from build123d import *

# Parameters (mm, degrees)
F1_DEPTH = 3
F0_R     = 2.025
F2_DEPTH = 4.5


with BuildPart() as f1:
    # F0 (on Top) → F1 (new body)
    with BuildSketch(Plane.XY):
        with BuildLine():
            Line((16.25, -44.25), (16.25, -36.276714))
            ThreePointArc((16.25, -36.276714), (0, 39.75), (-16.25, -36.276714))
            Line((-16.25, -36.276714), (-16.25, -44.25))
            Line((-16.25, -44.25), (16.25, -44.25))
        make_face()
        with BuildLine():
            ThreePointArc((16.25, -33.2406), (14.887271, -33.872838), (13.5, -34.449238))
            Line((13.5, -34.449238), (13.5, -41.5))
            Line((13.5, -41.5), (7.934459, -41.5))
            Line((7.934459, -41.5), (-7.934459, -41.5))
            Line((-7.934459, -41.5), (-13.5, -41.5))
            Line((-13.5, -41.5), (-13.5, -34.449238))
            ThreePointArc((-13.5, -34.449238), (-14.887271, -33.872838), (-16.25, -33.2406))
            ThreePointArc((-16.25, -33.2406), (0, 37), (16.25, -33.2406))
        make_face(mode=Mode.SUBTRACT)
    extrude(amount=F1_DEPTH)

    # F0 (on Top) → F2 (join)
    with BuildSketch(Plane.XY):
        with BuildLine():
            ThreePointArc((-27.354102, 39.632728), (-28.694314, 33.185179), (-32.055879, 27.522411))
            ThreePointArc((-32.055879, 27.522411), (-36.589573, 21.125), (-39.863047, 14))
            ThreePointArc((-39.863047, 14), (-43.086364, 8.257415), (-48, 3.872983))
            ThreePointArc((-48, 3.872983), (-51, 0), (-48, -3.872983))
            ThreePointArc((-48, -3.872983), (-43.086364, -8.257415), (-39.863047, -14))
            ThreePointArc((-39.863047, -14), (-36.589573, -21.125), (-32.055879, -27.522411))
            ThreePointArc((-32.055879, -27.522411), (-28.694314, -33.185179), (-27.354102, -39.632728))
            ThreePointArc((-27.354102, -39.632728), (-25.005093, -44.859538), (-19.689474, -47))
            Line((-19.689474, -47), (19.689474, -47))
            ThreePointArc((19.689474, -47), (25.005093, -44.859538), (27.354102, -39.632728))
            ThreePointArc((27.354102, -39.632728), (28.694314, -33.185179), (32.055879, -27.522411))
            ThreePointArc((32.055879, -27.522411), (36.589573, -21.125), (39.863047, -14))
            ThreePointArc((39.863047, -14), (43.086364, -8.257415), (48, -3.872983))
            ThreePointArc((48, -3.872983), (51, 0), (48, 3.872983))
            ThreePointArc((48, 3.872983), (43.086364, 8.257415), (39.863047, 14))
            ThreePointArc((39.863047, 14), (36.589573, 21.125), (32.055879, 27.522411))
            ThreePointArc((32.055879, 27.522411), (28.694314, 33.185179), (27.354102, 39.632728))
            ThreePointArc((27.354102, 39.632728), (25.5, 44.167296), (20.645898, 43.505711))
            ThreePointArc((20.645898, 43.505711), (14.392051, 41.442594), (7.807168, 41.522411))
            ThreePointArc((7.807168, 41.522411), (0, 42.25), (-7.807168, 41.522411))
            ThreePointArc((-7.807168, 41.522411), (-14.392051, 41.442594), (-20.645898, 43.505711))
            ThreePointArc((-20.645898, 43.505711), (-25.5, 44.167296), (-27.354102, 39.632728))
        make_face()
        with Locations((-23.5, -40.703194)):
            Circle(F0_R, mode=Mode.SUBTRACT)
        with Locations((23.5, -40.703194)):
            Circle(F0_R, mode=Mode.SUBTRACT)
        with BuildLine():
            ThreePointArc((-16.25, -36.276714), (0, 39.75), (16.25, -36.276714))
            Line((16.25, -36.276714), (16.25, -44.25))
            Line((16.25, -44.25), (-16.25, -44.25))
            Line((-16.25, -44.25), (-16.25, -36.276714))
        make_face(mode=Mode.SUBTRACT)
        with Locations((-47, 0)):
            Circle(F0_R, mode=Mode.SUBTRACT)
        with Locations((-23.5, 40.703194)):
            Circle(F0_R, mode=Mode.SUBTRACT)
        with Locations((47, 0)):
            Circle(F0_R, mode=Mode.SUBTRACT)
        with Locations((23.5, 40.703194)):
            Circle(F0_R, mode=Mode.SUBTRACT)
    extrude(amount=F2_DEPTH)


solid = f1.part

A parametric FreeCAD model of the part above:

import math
import FreeCAD as App
import Part
import Sketcher
from FreeCAD import Vector
Q = App.Units.Quantity

doc = App.newDocument("Part")
body = doc.addObject("PartDesign::Body", "Body")

# Sketch on XY plane
sketch1 = doc.addObject("Sketcher::SketchObject", "Sketch")
body.addObject(sketch1)
sketch1.AttachmentSupport = (doc.XY_Plane, [""])
sketch1.MapMode = "FlatFace"
sketch1.addGeometry([
    Part.LineSegment(Vector(16.2, -44.2, 0), Vector(16.2, -36.3, 0)),  # 0
    Part.ArcOfCircle(Part.Circle(Vector(0, 0, 0), Vector(0, 0, 1), 39.7), math.radians(-66), math.radians(246)),  # 1
    Part.LineSegment(Vector(-16.2, -36.3, 0), Vector(-16.2, -44.2, 0)),  # 2
    Part.LineSegment(Vector(-16.2, -44.2, 0), Vector(16.2, -44.2, 0)),  # 3
    Part.ArcOfCircle(Part.Circle(Vector(0, 0, 0), Vector(0, 0, 1), 37), math.radians(-64), math.radians(244)),  # 4
    Part.ArcOfCircle(Part.Circle(Vector(0, 0, 0), Vector(0, 0, 1), 37), math.radians(-68.6), math.radians(-63.95)),  # 5
    Part.LineSegment(Vector(13.5, -34.4, 0), Vector(13.5, -41.5, 0)),  # 6
    Part.LineSegment(Vector(13.5, -41.5, 0), Vector(-13.5, -41.5, 0)),  # 7
    Part.LineSegment(Vector(-13.5, -41.5, 0), Vector(-13.5, -34.4, 0)),  # 8
    Part.ArcOfCircle(Part.Circle(Vector(0, 0, 0), Vector(0, 0, 1), 37), math.radians(-116.05), math.radians(-111.4)),  # 9
], False)
sketch1.addConstraint([
    Sketcher.Constraint("Coincident", 0, 2, 1, 1),
    Sketcher.Constraint("Coincident", 1, 2, 2, 1),
    Sketcher.Constraint("Coincident", 2, 2, 3, 1),
    Sketcher.Constraint("Coincident", 3, 2, 0, 1),
    Sketcher.Constraint("Tangent", 4, 1, 5, 2),
    Sketcher.Constraint("Coincident", 5, 1, 6, 1),
    Sketcher.Constraint("Coincident", 6, 2, 7, 1),
    Sketcher.Constraint("Coincident", 7, 2, 8, 1),
    Sketcher.Constraint("Coincident", 8, 2, 9, 2),
    Sketcher.Constraint("Tangent", 9, 1, 4, 2),
    Sketcher.Constraint("Vertical", 0),
    Sketcher.Constraint("Vertical", 2),
    Sketcher.Constraint("Horizontal", 3),
    Sketcher.Constraint("Vertical", 6),
    Sketcher.Constraint("Horizontal", 7),
    Sketcher.Constraint("Vertical", 8),
    Sketcher.Constraint("Coincident", 1, 3, -1, 1),
    Sketcher.Constraint("Coincident", 4, 3, -1, 1),
    Sketcher.Constraint("Equal", 5, 9),
    Sketcher.Constraint("Horizontal", 0, 2, 1, 2),
    Sketcher.Constraint("Horizontal", 5, 1, 8, 2),
    Sketcher.Constraint("Horizontal", 4, 1, 9, 1),
    Sketcher.Constraint("Vertical", 3, 2, 4, 1),
    Sketcher.Constraint("Radius", 4, Q("37 mm")),
    Sketcher.Constraint("DistanceX", 7, 2, 7, 1, Q("27 mm")),
    Sketcher.Constraint("Radius", 1, Q("39.75 mm")),
    Sketcher.Constraint("DistanceX", 3, 1, 3, 2, Q("32.5 mm")),
    Sketcher.Constraint("DistanceY", 6, 2, -1, 1, Q("41.5 mm")),
    Sketcher.Constraint("DistanceY", 2, 2, -1, 1, Q("44.25 mm")),
    Sketcher.Constraint("Radius", 5, Q("37.000026 mm")),
])
pad1 = doc.addObject("PartDesign::Pad", "Pad")
body.addObject(pad1)
pad1.Profile = sketch1
pad1.Length = 3

# Sketch on XY plane
sketch2 = doc.addObject("Sketcher::SketchObject", "Sketch001")
body.addObject(sketch2)
sketch2.AttachmentSupport = (doc.XY_Plane, [""])
sketch2.MapMode = "FlatFace"
sketch2.addGeometry([
    Part.ArcOfCircle(Part.Circle(Vector(-47.338467, 40.423689, 0), Vector(0, 0, 1), 20.000011), math.radians(-40.170438), math.radians(-2.266525)),  # 0
    Part.ArcOfCircle(Part.Circle(Vector(0.000014, -0.000009, 0), Vector(0, 0, 1), 42.250016), math.radians(139.351403), math.radians(160.648594)),  # 1
    Part.ArcOfCircle(Part.Circle(Vector(-58.67716, 20.784457, 0), Vector(0, 0, 1), 19.999993), math.radians(-57.73349), math.radians(-19.829541)),  # 2
    Part.ArcOfCircle(Part.Circle(Vector(-47, 0, 0), Vector(0, 0, 1), 4), math.radians(104.477507), math.radians(255.522493)),  # 3
    Part.ArcOfCircle(Part.Circle(Vector(-58.67716, -20.784457, 0), Vector(0, 0, 1), 19.999993), math.radians(19.829541), math.radians(57.73349)),  # 4
    Part.ArcOfCircle(Part.Circle(Vector(0.000014, 0.000009, 0), Vector(0, 0, 1), 42.250016), math.radians(-160.648594), math.radians(-139.351403)),  # 5
    Part.ArcOfCircle(Part.Circle(Vector(-47.338467, -40.423689, 0), Vector(0, 0, 1), 20.000011), math.radians(2.266525), math.radians(40.170438)),  # 6
    Part.ArcOfCircle(Part.Circle(Vector(-19.689475, -39.329372, 0), Vector(0, 0, 1), 7.670628), math.radians(-177.733488), math.radians(-89.999996)),  # 7
    Part.LineSegment(Vector(-19.689474, -47, 0), Vector(19.689474, -47, 0)),  # 8
    Part.ArcOfCircle(Part.Circle(Vector(19.689475, -39.329372, 0), Vector(0, 0, 1), 7.670628), math.radians(-90.000004), math.radians(-2.266512)),  # 9
    Part.ArcOfCircle(Part.Circle(Vector(47.338467, -40.423689, 0), Vector(0, 0, 1), 20.000011), math.radians(139.829562), math.radians(177.733475)),  # 10
    Part.ArcOfCircle(Part.Circle(Vector(-0.000014, 0.000009, 0), Vector(0, 0, 1), 42.250016), math.radians(-40.648597), math.radians(-19.351406)),  # 11
    Part.ArcOfCircle(Part.Circle(Vector(58.67716, -20.784457, 0), Vector(0, 0, 1), 19.999993), math.radians(122.26651), math.radians(160.170459)),  # 12
    Part.ArcOfCircle(Part.Circle(Vector(47, 0, 0), Vector(0, 0, 1), 4), math.radians(-75.522493), math.radians(75.522493)),  # 13
    Part.ArcOfCircle(Part.Circle(Vector(58.67716, 20.784457, 0), Vector(0, 0, 1), 19.999993), math.radians(-160.170459), math.radians(-122.26651)),  # 14
    Part.ArcOfCircle(Part.Circle(Vector(-0.000014, -0.000009, 0), Vector(0, 0, 1), 42.250016), math.radians(19.351406), math.radians(40.648597)),  # 15
    Part.ArcOfCircle(Part.Circle(Vector(47.338467, 40.423689, 0), Vector(0, 0, 1), 20.000011), math.radians(-177.733475), math.radians(-139.829562)),  # 16
    Part.ArcOfCircle(Part.Circle(Vector(23.5, 40.703194, 0), Vector(0, 0, 1), 4), math.radians(-15.522491), math.radians(135.522496)),  # 17
    Part.ArcOfCircle(Part.Circle(Vector(11.338709, 61.208153, 0), Vector(0, 0, 1), 20.000005), math.radians(-100.170443), math.radians(-62.266521)),  # 18
    Part.ArcOfCircle(Part.Circle(Vector(0, 0.000009, 0), Vector(0, 0, 1), 42.249991), math.radians(79.351398), math.radians(100.648602)),  # 19
    Part.ArcOfCircle(Part.Circle(Vector(-11.338709, 61.208153, 0), Vector(0, 0, 1), 20.000005), math.radians(-117.733479), math.radians(-79.829557)),  # 20
    Part.ArcOfCircle(Part.Circle(Vector(-23.5, 40.703194, 0), Vector(0, 0, 1), 4), math.radians(44.477504), math.radians(195.522491)),  # 21
    Part.Circle(Vector(-23.5, -40.703194, 0), Vector(0, 0, 1), 2.025),  # 22
    Part.Circle(Vector(23.5, -40.703194, 0), Vector(0, 0, 1), 2.025),  # 23
    Part.LineSegment(Vector(-16.25, -44.25, 0), Vector(-16.25, -36.276714, 0)),  # 24
    Part.ArcOfCircle(Part.Circle(Vector(0, 0, 0), Vector(0, 0, 1), 39.75), math.radians(-65.870209), math.radians(245.870209)),  # 25
    Part.LineSegment(Vector(16.25, -36.276714, 0), Vector(16.25, -44.25, 0)),  # 26
    Part.LineSegment(Vector(16.25, -44.25, 0), Vector(-16.25, -44.25, 0)),  # 27
    Part.Circle(Vector(-47, 0, 0), Vector(0, 0, 1), 2.025),  # 28
    Part.Circle(Vector(-23.5, 40.703194, 0), Vector(0, 0, 1), 2.025),  # 29
    Part.Circle(Vector(47, 0, 0), Vector(0, 0, 1), 2.025),  # 30
    Part.Circle(Vector(23.5, 40.703194, 0), Vector(0, 0, 1), 2.025),  # 31
], False)
sketch2.addConstraint([
    Sketcher.Constraint("Coincident", 0, 1, 1, 1),
    Sketcher.Constraint("Coincident", 1, 2, 2, 2),
    Sketcher.Constraint("Coincident", 2, 1, 3, 1),
    Sketcher.Constraint("Coincident", 3, 2, 4, 2),
    Sketcher.Constraint("Coincident", 4, 1, 5, 1),
    Sketcher.Constraint("Coincident", 5, 2, 6, 2),
    Sketcher.Constraint("Coincident", 6, 1, 7, 1),
    Sketcher.Constraint("Coincident", 7, 2, 8, 1),
    Sketcher.Constraint("Coincident", 8, 2, 9, 1),
    Sketcher.Constraint("Coincident", 9, 2, 10, 2),
    Sketcher.Constraint("Coincident", 10, 1, 11, 1),
    Sketcher.Constraint("Coincident", 11, 2, 12, 2),
    Sketcher.Constraint("Coincident", 12, 1, 13, 1),
    Sketcher.Constraint("Coincident", 13, 2, 14, 2),
    Sketcher.Constraint("Coincident", 14, 1, 15, 1),
    Sketcher.Constraint("Coincident", 15, 2, 16, 2),
    Sketcher.Constraint("Coincident", 16, 1, 17, 1),
    Sketcher.Constraint("Coincident", 17, 2, 18, 2),
    Sketcher.Constraint("Coincident", 18, 1, 19, 1),
    Sketcher.Constraint("Coincident", 19, 2, 20, 2),
    Sketcher.Constraint("Coincident", 20, 1, 21, 1),
    Sketcher.Constraint("Coincident", 21, 2, 0, 2),
    Sketcher.Constraint("Coincident", 24, 2, 25, 2),
    Sketcher.Constraint("Coincident", 25, 1, 26, 1),
    Sketcher.Constraint("Coincident", 26, 2, 27, 1),
    Sketcher.Constraint("Coincident", 27, 2, 24, 1),
    Sketcher.Constraint("Horizontal", 8),
    Sketcher.Constraint("Vertical", 24),
    Sketcher.Constraint("Vertical", 26),
    Sketcher.Constraint("Horizontal", 27),
    Sketcher.Constraint("Coincident", 19, 3, -1, 1),
    Sketcher.Constraint("Coincident", 25, 3, -1, 1),
    Sketcher.Constraint("Coincident", 28, 3, 3, 3),
    Sketcher.Constraint("Coincident", 29, 3, 21, 3),
    Sketcher.Constraint("Coincident", 30, 3, 13, 3),
    Sketcher.Constraint("Coincident", 31, 3, 17, 3),
    Sketcher.Constraint("PointOnObject", 3, 3, -1),
    Sketcher.Constraint("PointOnObject", 13, 3, -1),
    Sketcher.Constraint("Radius", 3, Q("4 mm")),
    Sketcher.Constraint("Radius", 13, Q("4 mm")),
    Sketcher.Constraint("Radius", 17, Q("4 mm")),
    Sketcher.Constraint("Radius", 21, Q("4 mm")),
    Sketcher.Constraint("Diameter", 22, Q("4.05 mm")),
    Sketcher.Constraint("Diameter", 23, Q("4.05 mm")),
    Sketcher.Constraint("Diameter", 28, Q("4.05 mm")),
    Sketcher.Constraint("Diameter", 29, Q("4.05 mm")),
    Sketcher.Constraint("Diameter", 30, Q("4.05 mm")),
    Sketcher.Constraint("Diameter", 31, Q("4.05 mm")),
    Sketcher.Constraint("Radius", 25, Q("39.75 mm")),
    Sketcher.Constraint("DistanceX", 27, 2, 27, 1, Q("32.5 mm")),
    Sketcher.Constraint("DistanceX", 3, 3, -1, 1, Q("47 mm")),
    Sketcher.Constraint("DistanceX", -1, 1, 13, 3, Q("47 mm")),
    Sketcher.Constraint("DistanceY", -1, 1, 1, 2, Q("14 mm")),
    Sketcher.Constraint("DistanceX", 2, 1, -1, 1, Q("48 mm")),
    Sketcher.Constraint("DistanceX", 3, 2, -1, 1, Q("48 mm")),
    Sketcher.Constraint("DistanceY", 4, 1, -1, 1, Q("14 mm")),
    Sketcher.Constraint("DistanceY", 7, 2, -1, 1, Q("47 mm")),
    Sketcher.Constraint("DistanceY", 11, 2, -1, 1, Q("14 mm")),
    Sketcher.Constraint("DistanceX", -1, 1, 12, 1, Q("48 mm")),
    Sketcher.Constraint("DistanceX", -1, 1, 13, 2, Q("48 mm")),
    Sketcher.Constraint("DistanceY", -1, 1, 14, 1, Q("14 mm")),
    Sketcher.Constraint("DistanceX", -1, 1, 17, 3, Q("23.5 mm")),
    Sketcher.Constraint("DistanceX", 21, 3, -1, 1, Q("23.5 mm")),
    Sketcher.Constraint("DistanceX", 22, 3, -1, 1, Q("23.5 mm")),
    Sketcher.Constraint("DistanceX", -1, 1, 23, 3, Q("23.5 mm")),
    Sketcher.Constraint("DistanceX", 24, 2, -1, 1, Q("16.25 mm")),
    Sketcher.Constraint("DistanceY", 26, 2, -1, 1, Q("44.25 mm")),
    Sketcher.Constraint("Radius", 0, Q("20.000011 mm")),
    Sketcher.Constraint("Radius", 6, Q("20.000011 mm")),
    Sketcher.Constraint("Radius", 7, Q("7.670628 mm")),
    Sketcher.Constraint("Radius", 9, Q("7.670628 mm")),
    Sketcher.Constraint("Radius", 10, Q("20.000011 mm")),
    Sketcher.Constraint("Radius", 16, Q("20.000011 mm")),
    Sketcher.Constraint("Radius", 19, Q("42.249991 mm")),
    Sketcher.Constraint("Radius", 1, Q("42.250016 mm")),
    Sketcher.Constraint("Radius", 2, Q("19.999993 mm")),
    Sketcher.Constraint("Radius", 4, Q("19.999993 mm")),
    Sketcher.Constraint("Radius", 5, Q("42.250016 mm")),
    Sketcher.Constraint("Radius", 11, Q("42.250016 mm")),
    Sketcher.Constraint("Radius", 12, Q("19.999993 mm")),
    Sketcher.Constraint("Radius", 14, Q("19.999993 mm")),
    Sketcher.Constraint("Radius", 15, Q("42.250016 mm")),
    Sketcher.Constraint("Radius", 18, Q("20.000005 mm")),
    Sketcher.Constraint("Radius", 20, Q("20.000005 mm")),
    Sketcher.Constraint("DistanceX", -1, 1, 9, 2, Q("27.354102 mm")),
    Sketcher.Constraint("DistanceX", -1, 1, 17, 2, Q("20.645898 mm")),
    Sketcher.Constraint("DistanceX", 20, 1, -1, 1, Q("20.645898 mm")),
    Sketcher.Constraint("DistanceX", 17, 3, 16, 1, Q("3.854102 mm")),
    Sketcher.Constraint("DistanceY", 15, 2, 17, 2, Q("15.9833 mm")),
    Sketcher.Constraint("DistanceY", 18, 1, 17, 2, Q("1.9833 mm")),
    Sketcher.Constraint("DistanceY", 19, 2, 20, 1, Q("1.9833 mm")),
    Sketcher.Constraint("DistanceY", 0, 1, 20, 1, Q("15.9833 mm")),
    Sketcher.Constraint("DistanceX", 21, 2, 21, 3, Q("3.854102 mm")),
    Sketcher.Constraint("DistanceX", 8, 1, 8, 2, Q("39.378948 mm")),
    Sketcher.Constraint("DistanceY", -1, 1, 0, 3, Q("40.423689 mm")),
    Sketcher.Constraint("DistanceX", 2, 3, -1, 1, Q("58.67716 mm")),
    Sketcher.Constraint("DistanceX", 4, 3, -1, 1, Q("58.67716 mm")),
    Sketcher.Constraint("DistanceY", 6, 3, -1, 1, Q("40.423689 mm")),
    Sketcher.Constraint("DistanceY", 10, 3, -1, 1, Q("40.423689 mm")),
    Sketcher.Constraint("DistanceX", -1, 1, 12, 3, Q("58.67716 mm")),
    Sketcher.Constraint("DistanceX", -1, 1, 14, 3, Q("58.67716 mm")),
    Sketcher.Constraint("DistanceY", -1, 1, 16, 3, Q("40.423689 mm")),
    Sketcher.Constraint("DistanceX", -1, 1, 18, 3, Q("11.338709 mm")),
    Sketcher.Constraint("DistanceX", 20, 3, -1, 1, Q("11.338709 mm")),
    Sketcher.Constraint("DistanceX", 5, 2, -1, 1, Q("32.055879 mm")),
    Sketcher.Constraint("DistanceY", 5, 2, -1, 1, Q("27.522411 mm")),
    Sketcher.Constraint("DistanceY", 6, 1, -1, 1, Q("39.632728 mm")),
    Sketcher.Constraint("DistanceX", -1, 1, 10, 1, Q("32.055879 mm")),
    Sketcher.Constraint("DistanceY", 10, 1, -1, 1, Q("27.522411 mm")),
    Sketcher.Constraint("DistanceX", 6, 1, 7, 2, Q("7.664628 mm")),
    Sketcher.Constraint("DistanceY", 22, 3, 24, 2, Q("4.42648 mm")),
    Sketcher.Constraint("DistanceY", 23, 3, 25, 1, Q("4.42648 mm")),
])
pad2 = doc.addObject("PartDesign::Pad", "Pad001")
body.addObject(pad2)
pad2.Profile = sketch2
pad2.Length = 4.5

doc.recompute()
